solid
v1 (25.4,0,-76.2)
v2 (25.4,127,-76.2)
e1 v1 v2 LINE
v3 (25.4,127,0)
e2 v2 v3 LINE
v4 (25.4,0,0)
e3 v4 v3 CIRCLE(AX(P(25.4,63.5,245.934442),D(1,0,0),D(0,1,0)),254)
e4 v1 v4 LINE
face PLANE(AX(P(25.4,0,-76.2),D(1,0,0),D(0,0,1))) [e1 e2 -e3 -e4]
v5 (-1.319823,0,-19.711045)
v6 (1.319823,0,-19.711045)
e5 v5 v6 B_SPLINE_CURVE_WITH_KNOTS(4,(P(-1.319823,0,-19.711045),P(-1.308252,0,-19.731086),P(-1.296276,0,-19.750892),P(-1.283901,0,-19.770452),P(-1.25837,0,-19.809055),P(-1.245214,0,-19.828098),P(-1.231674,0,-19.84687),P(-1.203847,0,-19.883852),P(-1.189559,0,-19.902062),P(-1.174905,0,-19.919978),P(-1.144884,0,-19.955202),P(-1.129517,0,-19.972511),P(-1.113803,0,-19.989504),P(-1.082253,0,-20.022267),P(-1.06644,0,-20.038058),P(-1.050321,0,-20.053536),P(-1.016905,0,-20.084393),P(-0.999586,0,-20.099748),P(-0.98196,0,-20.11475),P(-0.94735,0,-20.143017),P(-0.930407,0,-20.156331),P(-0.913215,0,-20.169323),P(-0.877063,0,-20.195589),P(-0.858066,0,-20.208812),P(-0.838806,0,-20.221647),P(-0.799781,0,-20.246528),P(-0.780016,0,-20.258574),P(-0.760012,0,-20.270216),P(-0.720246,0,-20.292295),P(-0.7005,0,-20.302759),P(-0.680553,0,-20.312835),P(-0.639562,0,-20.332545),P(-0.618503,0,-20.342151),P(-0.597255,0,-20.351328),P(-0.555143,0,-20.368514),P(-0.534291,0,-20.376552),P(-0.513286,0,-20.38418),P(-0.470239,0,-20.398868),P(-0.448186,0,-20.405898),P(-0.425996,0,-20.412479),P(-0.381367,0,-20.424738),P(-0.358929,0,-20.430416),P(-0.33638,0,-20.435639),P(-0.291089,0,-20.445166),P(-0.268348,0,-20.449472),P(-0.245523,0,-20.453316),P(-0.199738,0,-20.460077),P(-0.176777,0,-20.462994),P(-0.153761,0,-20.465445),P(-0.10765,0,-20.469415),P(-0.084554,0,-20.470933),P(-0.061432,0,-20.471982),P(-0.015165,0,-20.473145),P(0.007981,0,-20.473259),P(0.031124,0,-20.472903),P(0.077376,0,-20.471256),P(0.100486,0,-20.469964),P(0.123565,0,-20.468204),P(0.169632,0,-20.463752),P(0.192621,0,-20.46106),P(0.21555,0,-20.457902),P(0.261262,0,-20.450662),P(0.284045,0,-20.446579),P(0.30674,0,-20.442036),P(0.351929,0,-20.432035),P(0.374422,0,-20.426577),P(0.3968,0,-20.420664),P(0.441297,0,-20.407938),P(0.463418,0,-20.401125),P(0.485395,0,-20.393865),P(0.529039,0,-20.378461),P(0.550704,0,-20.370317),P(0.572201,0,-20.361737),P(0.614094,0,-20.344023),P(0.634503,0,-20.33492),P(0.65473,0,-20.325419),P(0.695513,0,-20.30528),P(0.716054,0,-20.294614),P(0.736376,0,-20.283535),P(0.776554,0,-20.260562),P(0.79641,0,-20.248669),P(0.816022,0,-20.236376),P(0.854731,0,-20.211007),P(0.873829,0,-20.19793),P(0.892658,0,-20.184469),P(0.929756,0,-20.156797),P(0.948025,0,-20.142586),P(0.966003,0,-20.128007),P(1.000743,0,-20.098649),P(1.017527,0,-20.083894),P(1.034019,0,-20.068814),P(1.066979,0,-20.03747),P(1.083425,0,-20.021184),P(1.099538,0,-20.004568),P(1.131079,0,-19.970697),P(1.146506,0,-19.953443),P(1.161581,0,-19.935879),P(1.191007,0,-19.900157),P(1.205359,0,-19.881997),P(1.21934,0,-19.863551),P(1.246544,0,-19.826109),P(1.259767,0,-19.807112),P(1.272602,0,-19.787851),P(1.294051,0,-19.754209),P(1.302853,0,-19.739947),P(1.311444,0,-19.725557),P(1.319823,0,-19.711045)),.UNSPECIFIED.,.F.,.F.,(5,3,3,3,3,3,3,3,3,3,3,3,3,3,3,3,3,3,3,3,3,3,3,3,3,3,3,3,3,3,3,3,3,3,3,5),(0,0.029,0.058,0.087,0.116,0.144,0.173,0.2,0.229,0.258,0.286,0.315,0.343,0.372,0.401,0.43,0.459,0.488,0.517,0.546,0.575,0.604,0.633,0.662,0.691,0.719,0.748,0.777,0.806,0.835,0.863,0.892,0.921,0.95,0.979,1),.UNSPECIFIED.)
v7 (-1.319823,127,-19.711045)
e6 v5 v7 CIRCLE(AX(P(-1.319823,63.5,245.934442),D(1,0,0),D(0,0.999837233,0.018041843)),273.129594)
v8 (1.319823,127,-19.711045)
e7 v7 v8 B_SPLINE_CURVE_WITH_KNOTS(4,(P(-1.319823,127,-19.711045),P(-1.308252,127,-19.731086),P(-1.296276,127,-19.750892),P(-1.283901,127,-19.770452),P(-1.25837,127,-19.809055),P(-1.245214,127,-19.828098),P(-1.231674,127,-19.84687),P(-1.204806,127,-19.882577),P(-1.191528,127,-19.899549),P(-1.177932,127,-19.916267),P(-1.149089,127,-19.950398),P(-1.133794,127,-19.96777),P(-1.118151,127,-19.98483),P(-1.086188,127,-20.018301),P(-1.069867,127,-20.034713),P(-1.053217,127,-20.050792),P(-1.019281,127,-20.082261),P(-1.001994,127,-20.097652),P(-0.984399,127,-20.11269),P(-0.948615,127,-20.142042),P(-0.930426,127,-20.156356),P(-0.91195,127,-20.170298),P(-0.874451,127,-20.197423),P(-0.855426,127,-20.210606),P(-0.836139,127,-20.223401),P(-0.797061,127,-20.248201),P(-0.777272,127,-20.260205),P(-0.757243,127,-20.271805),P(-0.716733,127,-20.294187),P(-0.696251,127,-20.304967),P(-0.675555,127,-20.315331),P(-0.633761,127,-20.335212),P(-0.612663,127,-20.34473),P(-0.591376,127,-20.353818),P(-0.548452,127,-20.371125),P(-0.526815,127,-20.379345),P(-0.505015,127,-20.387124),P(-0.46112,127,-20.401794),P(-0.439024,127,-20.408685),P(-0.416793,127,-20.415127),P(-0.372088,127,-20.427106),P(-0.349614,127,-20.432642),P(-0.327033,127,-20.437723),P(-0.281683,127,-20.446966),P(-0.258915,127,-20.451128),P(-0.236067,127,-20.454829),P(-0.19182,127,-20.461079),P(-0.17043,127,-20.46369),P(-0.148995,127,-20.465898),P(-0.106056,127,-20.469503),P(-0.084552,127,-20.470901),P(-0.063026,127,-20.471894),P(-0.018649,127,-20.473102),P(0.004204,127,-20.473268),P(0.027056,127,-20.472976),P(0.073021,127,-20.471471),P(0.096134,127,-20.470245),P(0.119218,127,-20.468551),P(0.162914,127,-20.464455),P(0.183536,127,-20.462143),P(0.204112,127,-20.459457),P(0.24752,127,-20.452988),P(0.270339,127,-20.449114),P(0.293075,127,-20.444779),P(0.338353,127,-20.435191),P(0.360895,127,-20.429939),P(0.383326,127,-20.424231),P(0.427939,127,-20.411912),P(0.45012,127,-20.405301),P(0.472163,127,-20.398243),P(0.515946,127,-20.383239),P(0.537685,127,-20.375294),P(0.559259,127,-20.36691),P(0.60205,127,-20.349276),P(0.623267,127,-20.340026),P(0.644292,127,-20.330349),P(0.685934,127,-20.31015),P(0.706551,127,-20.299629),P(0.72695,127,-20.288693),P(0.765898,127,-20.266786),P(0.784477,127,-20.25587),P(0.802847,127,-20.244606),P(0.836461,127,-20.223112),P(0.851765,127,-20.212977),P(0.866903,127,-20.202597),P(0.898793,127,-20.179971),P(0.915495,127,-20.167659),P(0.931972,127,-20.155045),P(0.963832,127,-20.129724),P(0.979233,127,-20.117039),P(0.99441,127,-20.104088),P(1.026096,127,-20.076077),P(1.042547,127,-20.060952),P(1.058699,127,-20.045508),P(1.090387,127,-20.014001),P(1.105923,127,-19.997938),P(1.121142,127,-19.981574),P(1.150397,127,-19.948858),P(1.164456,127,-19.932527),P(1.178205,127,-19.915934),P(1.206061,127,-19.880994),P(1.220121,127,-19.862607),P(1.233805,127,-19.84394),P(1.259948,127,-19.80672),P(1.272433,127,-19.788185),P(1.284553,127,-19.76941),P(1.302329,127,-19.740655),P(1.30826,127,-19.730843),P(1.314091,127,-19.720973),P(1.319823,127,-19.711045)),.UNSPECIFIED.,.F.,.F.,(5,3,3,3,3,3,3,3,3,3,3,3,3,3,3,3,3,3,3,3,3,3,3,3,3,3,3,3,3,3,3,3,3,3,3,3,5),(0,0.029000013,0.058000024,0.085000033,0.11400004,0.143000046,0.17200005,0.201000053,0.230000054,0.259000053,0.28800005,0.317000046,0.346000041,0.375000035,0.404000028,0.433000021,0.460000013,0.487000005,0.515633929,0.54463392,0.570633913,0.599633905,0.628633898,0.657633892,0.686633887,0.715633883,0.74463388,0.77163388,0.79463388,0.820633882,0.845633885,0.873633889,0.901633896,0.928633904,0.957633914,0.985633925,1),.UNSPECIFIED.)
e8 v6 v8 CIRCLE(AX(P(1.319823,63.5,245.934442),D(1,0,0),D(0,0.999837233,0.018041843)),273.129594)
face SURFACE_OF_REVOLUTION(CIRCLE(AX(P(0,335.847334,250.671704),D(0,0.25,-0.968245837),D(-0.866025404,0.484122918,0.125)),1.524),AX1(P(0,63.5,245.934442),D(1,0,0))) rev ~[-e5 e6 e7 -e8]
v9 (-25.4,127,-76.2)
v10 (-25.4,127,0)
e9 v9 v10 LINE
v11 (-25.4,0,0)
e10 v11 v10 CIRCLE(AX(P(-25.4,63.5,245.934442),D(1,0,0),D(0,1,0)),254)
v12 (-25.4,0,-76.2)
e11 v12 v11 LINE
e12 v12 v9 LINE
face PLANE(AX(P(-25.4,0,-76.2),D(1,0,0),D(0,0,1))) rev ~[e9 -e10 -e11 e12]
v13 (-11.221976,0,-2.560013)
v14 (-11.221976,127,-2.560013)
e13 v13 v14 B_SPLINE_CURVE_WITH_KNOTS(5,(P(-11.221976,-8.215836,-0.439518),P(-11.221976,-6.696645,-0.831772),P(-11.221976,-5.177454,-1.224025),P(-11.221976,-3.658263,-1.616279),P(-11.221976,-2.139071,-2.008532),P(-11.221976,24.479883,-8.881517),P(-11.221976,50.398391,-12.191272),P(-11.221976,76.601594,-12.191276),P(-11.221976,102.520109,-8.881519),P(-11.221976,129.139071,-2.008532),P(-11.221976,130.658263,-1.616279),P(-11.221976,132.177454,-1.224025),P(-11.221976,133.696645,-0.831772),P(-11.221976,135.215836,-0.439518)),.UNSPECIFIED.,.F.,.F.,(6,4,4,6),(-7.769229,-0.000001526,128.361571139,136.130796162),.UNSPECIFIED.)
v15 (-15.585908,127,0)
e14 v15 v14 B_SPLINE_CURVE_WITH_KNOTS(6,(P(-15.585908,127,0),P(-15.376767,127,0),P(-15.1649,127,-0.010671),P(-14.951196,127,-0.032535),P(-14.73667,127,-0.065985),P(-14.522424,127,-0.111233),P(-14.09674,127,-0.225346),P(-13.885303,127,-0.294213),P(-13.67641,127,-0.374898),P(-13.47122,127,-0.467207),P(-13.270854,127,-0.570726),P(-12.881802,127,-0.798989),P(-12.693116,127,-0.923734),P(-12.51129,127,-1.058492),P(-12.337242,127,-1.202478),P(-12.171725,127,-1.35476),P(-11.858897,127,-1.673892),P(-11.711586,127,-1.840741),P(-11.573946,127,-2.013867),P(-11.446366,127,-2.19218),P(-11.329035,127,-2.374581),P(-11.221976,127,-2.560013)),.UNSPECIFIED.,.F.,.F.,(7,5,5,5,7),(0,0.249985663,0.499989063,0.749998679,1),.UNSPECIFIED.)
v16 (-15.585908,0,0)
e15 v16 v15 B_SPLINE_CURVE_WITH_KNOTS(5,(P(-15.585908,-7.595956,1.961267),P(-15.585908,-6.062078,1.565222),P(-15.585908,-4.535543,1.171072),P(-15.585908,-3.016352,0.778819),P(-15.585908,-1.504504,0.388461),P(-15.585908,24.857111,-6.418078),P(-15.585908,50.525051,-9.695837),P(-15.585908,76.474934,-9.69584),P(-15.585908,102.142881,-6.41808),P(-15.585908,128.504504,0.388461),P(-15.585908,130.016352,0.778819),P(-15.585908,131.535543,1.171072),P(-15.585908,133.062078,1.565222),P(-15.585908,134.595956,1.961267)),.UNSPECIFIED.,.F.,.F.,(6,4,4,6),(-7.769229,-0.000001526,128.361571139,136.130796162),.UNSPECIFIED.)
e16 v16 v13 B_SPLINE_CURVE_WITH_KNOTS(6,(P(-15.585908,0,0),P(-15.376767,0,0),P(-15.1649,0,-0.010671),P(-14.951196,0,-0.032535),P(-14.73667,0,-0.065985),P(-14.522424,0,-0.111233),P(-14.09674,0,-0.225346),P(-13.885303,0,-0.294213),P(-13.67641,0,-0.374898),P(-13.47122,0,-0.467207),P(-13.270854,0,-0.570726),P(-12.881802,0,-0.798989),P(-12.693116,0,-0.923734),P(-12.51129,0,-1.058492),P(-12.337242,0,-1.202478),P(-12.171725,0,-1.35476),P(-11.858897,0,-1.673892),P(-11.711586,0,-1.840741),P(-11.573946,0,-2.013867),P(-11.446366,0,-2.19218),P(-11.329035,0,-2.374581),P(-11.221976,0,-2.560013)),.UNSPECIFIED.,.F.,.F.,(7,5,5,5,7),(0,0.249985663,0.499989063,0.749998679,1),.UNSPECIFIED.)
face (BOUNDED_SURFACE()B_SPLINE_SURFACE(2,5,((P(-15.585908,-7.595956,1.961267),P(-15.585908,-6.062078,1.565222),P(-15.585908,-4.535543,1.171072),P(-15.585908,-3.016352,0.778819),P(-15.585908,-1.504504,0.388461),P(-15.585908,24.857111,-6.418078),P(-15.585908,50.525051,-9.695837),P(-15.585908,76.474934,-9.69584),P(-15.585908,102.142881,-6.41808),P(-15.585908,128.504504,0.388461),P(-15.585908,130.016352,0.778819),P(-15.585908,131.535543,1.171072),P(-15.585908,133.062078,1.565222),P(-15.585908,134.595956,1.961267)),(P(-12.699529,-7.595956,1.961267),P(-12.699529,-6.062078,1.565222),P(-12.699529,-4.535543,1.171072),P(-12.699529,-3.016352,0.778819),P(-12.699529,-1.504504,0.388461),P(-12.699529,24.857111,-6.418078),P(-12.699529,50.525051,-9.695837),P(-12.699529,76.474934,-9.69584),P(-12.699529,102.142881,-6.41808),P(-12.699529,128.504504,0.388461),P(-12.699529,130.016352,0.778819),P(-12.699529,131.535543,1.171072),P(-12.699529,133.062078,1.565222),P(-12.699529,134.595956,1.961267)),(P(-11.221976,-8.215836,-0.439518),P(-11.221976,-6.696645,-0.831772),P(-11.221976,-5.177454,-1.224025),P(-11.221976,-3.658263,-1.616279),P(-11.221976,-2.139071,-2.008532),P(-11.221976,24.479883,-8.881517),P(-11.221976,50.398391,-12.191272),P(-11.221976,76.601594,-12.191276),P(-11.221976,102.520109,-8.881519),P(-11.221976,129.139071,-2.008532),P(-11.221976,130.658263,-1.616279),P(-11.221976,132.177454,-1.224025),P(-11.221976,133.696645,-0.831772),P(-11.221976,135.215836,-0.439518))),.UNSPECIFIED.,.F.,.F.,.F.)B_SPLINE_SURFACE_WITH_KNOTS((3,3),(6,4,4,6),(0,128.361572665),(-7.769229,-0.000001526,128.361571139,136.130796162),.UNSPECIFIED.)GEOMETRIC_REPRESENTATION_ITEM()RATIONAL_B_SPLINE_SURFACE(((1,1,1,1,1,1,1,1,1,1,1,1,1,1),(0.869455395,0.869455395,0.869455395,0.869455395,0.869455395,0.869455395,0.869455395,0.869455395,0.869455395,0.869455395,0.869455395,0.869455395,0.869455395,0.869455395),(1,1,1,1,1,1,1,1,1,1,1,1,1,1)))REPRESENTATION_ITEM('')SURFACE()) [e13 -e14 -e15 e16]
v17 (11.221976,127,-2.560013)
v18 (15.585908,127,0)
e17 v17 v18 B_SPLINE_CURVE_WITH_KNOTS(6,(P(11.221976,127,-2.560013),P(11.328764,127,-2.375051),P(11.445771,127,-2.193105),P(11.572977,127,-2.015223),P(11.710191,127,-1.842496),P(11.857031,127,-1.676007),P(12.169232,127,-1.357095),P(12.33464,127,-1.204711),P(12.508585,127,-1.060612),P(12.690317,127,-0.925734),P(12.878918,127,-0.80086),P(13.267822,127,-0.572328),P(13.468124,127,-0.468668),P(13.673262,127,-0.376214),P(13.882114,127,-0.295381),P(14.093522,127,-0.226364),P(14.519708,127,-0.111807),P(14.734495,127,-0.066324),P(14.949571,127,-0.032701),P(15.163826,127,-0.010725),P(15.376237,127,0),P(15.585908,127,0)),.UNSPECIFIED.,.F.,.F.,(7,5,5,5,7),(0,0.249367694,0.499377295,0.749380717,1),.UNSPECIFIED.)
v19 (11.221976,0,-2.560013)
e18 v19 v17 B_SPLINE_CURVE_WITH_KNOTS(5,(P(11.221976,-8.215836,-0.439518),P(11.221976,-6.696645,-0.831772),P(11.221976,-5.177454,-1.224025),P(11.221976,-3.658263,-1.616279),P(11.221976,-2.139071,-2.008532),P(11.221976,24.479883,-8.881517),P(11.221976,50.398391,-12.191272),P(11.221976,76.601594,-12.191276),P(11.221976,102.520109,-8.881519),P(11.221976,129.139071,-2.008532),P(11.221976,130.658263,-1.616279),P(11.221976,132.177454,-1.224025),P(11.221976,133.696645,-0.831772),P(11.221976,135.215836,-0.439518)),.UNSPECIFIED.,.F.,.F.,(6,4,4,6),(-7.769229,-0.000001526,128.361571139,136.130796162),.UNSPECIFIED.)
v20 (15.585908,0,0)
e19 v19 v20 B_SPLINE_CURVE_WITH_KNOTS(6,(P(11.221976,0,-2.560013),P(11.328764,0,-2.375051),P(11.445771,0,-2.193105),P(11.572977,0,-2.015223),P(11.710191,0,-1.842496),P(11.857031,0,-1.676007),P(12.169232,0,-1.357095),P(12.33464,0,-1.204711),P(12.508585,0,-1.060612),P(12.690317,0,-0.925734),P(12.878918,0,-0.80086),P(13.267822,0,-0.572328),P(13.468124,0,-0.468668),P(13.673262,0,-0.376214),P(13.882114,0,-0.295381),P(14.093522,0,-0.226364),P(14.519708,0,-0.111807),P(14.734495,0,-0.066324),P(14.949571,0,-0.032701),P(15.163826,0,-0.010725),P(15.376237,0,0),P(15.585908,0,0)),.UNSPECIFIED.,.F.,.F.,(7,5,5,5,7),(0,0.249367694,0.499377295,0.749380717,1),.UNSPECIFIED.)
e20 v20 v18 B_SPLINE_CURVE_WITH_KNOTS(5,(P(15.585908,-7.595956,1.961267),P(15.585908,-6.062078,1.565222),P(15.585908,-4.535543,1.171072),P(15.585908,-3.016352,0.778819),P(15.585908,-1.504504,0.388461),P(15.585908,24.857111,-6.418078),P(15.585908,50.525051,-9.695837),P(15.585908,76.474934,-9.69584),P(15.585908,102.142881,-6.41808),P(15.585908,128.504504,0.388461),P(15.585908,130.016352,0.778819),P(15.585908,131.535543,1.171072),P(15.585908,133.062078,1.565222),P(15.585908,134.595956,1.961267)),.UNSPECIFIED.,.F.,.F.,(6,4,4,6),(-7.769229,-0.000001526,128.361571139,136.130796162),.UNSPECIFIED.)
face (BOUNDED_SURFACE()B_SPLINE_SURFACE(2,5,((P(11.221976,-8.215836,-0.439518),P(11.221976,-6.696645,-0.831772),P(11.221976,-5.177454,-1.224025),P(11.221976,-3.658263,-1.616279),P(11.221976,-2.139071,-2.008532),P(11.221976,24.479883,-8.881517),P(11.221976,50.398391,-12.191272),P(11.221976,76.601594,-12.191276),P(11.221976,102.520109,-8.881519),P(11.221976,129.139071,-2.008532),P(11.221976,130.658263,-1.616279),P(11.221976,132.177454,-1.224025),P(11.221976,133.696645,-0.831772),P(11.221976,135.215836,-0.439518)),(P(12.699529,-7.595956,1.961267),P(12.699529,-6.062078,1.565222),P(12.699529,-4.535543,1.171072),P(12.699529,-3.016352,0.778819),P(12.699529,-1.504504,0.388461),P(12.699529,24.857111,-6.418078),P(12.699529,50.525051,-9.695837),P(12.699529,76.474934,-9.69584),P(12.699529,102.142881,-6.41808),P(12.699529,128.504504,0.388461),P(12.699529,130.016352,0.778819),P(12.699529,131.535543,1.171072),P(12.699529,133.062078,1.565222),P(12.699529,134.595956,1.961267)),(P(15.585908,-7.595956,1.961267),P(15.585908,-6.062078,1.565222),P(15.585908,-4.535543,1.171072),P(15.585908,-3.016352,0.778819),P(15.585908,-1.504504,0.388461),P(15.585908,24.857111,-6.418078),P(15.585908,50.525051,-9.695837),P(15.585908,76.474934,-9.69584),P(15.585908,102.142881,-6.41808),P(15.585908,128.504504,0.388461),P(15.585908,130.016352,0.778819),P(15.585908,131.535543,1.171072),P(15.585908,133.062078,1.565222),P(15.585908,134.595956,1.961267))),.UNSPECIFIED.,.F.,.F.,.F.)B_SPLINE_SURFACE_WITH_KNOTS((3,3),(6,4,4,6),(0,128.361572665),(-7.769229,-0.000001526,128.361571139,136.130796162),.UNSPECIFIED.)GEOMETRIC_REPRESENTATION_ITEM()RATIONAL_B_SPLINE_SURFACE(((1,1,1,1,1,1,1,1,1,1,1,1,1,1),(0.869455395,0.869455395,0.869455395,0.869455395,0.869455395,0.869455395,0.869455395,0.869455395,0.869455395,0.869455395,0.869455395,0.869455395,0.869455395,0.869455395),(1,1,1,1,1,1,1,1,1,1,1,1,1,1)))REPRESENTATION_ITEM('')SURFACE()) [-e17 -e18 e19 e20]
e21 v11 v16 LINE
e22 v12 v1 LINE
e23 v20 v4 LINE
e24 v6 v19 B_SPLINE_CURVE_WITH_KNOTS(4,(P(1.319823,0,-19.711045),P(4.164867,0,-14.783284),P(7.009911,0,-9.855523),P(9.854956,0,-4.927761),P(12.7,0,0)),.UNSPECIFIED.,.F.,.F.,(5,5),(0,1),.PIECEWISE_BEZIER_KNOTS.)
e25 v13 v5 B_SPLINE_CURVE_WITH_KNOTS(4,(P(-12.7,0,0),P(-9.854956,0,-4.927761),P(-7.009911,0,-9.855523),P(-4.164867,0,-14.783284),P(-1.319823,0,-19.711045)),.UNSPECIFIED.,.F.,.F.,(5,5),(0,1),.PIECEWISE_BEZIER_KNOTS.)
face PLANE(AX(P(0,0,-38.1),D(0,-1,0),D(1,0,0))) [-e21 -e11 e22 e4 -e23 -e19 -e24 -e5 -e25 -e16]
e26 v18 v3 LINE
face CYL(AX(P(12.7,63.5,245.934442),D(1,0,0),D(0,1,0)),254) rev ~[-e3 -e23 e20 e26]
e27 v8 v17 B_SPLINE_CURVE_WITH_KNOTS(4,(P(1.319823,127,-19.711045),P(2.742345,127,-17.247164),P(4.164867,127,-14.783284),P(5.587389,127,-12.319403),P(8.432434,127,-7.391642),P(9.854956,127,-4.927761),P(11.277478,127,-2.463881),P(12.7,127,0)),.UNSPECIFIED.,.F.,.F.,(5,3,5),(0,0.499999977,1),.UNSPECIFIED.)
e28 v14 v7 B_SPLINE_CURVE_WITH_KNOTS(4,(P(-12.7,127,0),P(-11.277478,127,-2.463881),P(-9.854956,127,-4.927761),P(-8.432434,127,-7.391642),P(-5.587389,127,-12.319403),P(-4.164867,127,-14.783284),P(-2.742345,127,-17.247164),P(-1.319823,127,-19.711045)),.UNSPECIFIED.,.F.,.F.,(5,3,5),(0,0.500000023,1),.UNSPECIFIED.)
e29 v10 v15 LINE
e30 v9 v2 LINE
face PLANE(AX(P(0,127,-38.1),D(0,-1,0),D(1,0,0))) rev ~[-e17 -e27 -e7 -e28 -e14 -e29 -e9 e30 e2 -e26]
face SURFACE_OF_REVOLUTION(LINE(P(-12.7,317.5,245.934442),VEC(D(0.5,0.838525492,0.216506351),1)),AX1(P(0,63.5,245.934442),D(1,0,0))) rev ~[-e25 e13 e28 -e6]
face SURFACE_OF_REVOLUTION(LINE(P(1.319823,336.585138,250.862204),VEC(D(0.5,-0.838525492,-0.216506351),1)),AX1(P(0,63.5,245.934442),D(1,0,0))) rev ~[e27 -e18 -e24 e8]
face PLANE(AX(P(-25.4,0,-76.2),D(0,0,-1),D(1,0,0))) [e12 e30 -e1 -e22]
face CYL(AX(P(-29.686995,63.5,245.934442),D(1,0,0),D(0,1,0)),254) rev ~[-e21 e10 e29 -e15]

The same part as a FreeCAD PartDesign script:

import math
import FreeCAD as App
import Part
import Sketcher
from FreeCAD import Vector
Q = App.Units.Quantity


def edges_at(feature, points):
    """Names of the edges that pass closest to the given points."""
    edges = feature.Shape.Edges
    near = lambda p: min(range(len(edges)), key=lambda i: edges[i].distToShape(Part.Vertex(*p))[0])
    return sorted({f"Edge{near(p) + 1}" for p in points})


def add_polygon(sketch, points):
    """Adds a closed chain of lines whose ends are joined by coincident constraints."""
    first, n = sketch.GeometryCount, len(points)
    for a, b in zip(points, points[1:] + points[:1]):
        sketch.addGeometry(Part.LineSegment(App.Vector(*a, 0), App.Vector(*b, 0)), False)
    for i in range(n):
        sketch.addConstraint(Sketcher.Constraint("Coincident", first + i, 2, first + (i + 1) % n, 1))

doc = App.newDocument("Part")
params = doc.addObject("Spreadsheet::Sheet", "Params")
for row, (alias, value) in enumerate([
    ("sketch1_width", "2 in"),
    ("sketch1_height", "3 in"),
    ("pad1_length", "5 in"),
    ("sketch2_radius", "0.06 in"),
    ("sketch3_diameter", "20 in"),
    ("fillet_radius", "0.2 in"),
], start=1):
    params.set(f"A{row}", alias)
    params.set(f"B{row}", "=" + value)
    params.setAlias(f"B{row}", alias)

body = doc.addObject("PartDesign::Body", "Body")

sketch1 = doc.addObject("Sketcher::SketchObject", "Sketch")
body.addObject(sketch1)
sketch1.AttachmentSupport = (doc.XZ_Plane, [""])
sketch1.MapMode = "FlatFace"
add_polygon(sketch1, [(-25.4, 0), (-25.4, -76.2), (25.4, -76.2), (25.4, 0)])
sketch1.addConstraint(Sketcher.Constraint("Vertical", 0))
sketch1.addConstraint(Sketcher.Constraint("Horizontal", 1))
sketch1.addConstraint(Sketcher.Constraint("Vertical", 2))
sketch1.addConstraint(Sketcher.Constraint("Horizontal", 3))
sketch1.addConstraint(Sketcher.Constraint("Symmetric", 2, 2, 3, 2, -1, 1))
sketch1.addConstraint(Sketcher.Constraint("DistanceX", 1, 1, 1, 2, Q("2 in")))
sketch1.addConstraint(Sketcher.Constraint("DistanceY", 0, 2, 0, 1, Q("3 in")))
sketch1.setExpression("Constraints[9]", "Params.sketch1_width")
sketch1.setExpression("Constraints[10]", "Params.sketch1_height")
pad1 = doc.addObject("PartDesign::Pad", "Pad")
body.addObject(pad1)
pad1.Profile = sketch1
pad1.setExpression("Length", "Params.pad1_length")
pad1.Reversed = True

sketch2 = doc.addObject("Sketcher::SketchObject", "Sketch001")
body.addObject(sketch2)
sketch2.AttachmentSupport = (doc.XZ_Plane, [""])
sketch2.MapMode = "FlatFace"
sketch2.addGeometry(Part.LineSegment(Vector(1.319823, -19.711045, 0), Vector(12.7, 0, 0)), False)
sketch2.addGeometry(Part.LineSegment(Vector(12.7, 0, 0), Vector(43.411016, 0, 0)), False)
sketch2.addGeometry(Part.LineSegment(Vector(43.411016, 0, 0), Vector(43.411016, 26.445447, 0)), False)
sketch2.addGeometry(Part.LineSegment(Vector(43.411016, 26.445447, 0), Vector(-29.686995, 26.445447, 0)), False)
sketch2.addGeometry(Part.LineSegment(Vector(-29.686995, 26.445447, 0), Vector(-29.686995, 0, 0)), False)
sketch2.addGeometry(Part.LineSegment(Vector(-29.686995, 0, 0), Vector(-12.7, 0, 0)), False)
sketch2.addGeometry(Part.LineSegment(Vector(-12.7, 0, 0), Vector(-1.319823, -19.711045, 0)), False)
sketch2.addGeometry(Part.ArcOfCircle(Part.Circle(Vector(0, -18.949045, 0), Vector(0, 0, 1), 1.524), math.radians(-150), math.radians(-30)), False)
sketch2.addConstraint(Sketcher.Constraint("Coincident", 0, 2, 1, 1))
sketch2.addConstraint(Sketcher.Constraint("Coincident", 1, 2, 2, 1))
sketch2.addConstraint(Sketcher.Constraint("Coincident", 2, 2, 3, 1))
sketch2.addConstraint(Sketcher.Constraint("Coincident", 3, 2, 4, 1))
sketch2.addConstraint(Sketcher.Constraint("Coincident", 4, 2, 5, 1))
sketch2.addConstraint(Sketcher.Constraint("Coincident", 5, 2, 6, 1))
sketch2.addConstraint(Sketcher.Constraint("Tangent", 6, 2, 7, 1))
sketch2.addConstraint(Sketcher.Constraint("Tangent", 7, 2, 0, 1))
sketch2.addConstraint(Sketcher.Constraint("Horizontal", 1))
sketch2.addConstraint(Sketcher.Constraint("Vertical", 2))
sketch2.addConstraint(Sketcher.Constraint("Horizontal", 3))
sketch2.addConstraint(Sketcher.Constraint("Vertical", 4))
sketch2.addConstraint(Sketcher.Constraint("Horizontal", 5))
sketch2.addConstraint(Sketcher.Constraint("Symmetric", 0, 2, 5, 2, -1, 1))
sketch2.addConstraint(Sketcher.Constraint("Symmetric", 6, 2, 7, 2, -2))
sketch2.addConstraint(Sketcher.Constraint("Radius", 7, Q("0.06 in")))
sketch2.addConstraint(Sketcher.Constraint("Angle", 0, Q("60 deg")))
sketch2.addConstraint(Sketcher.Constraint("DistanceX", 5, 2, 0, 2, Q("1 in")))
sketch2.addConstraint(Sketcher.Constraint("DistanceX", 3, 2, 3, 1, 73.098011))
sketch2.addConstraint(Sketcher.Constraint("DistanceX", 1, 1, 1, 2, 30.711016))
sketch2.addConstraint(Sketcher.Constraint("DistanceY", 2, 1, 2, 2, 26.445447))
sketch2.setExpression("Constraints[15]", "Params.sketch2_radius")

sketch3 = doc.addObject("Sketcher::SketchObject", "Sketch002")
body.addObject(sketch3)
sketch3.AttachmentSupport = (doc.YZ_Plane, [""])
sketch3.MapMode = "FlatFace"
sketch3.addGeometry(Part.Circle(Vector(63.5, 245.934442, 0), Vector(0, 0, 1), 254), False)
sketch3.addConstraint(Sketcher.Constraint("Diameter", 0, Q("20 in")))
sketch3.addConstraint(Sketcher.Constraint("DistanceX", -1, 1, 0, 3, Q("2.5 in")))
sketch3.addConstraint(Sketcher.Constraint("DistanceY", -1, 1, 0, 3, 245.934442))
sketch3.setExpression("Constraints[0]", "Params.sketch3_diameter")
doc.recompute()

subtractivepipe = doc.addObject("PartDesign::SubtractivePipe", "SubtractivePipe")
body.addObject(subtractivepipe)
subtractivepipe.Profile = sketch2
subtractivepipe.Spine = (sketch3, ["Edge1"])
doc.recompute()

fillet = doc.addObject("PartDesign::Fillet", "Fillet")
body.addObject(fillet)
fillet.Base = (subtractivepipe, edges_at(subtractivepipe, [(-12.7, 63.5, -8.066), (12.7, 63.5, -8.066)]))
fillet.setExpression("Radius", "Params.fillet_radius")

doc.recompute()
